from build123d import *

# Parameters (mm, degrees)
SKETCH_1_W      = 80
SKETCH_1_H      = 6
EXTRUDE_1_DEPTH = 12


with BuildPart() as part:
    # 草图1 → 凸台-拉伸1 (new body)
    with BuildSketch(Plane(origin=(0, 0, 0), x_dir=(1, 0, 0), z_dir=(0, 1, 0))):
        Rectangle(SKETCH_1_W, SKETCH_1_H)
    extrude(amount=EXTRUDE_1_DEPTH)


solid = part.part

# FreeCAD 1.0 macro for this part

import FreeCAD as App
import Part
import Sketcher

V = App.Vector
Q = App.Units.Quantity


def add_polygon(sketch, points):
    """Adds a closed chain of lines whose ends are joined by coincident constraints."""
    first, n = sketch.GeometryCount, len(points)
    for a, b in zip(points, points[1:] + points[:1]):
        sketch.addGeometry(Part.LineSegment(App.Vector(*a, 0), App.Vector(*b, 0)), False)
    for i in range(n):
        sketch.addConstraint(Sketcher.Constraint("Coincident", first + i, 2, first + (i + 1) % n, 1))

doc = App.newDocument("Part")
body = doc.addObject("PartDesign::Body", "Body")

sketch1 = body.newObject("Sketcher::SketchObject", "Sketch")
sketch1.AttachmentSupport = (doc.getObject("XZ_Plane"), [""])
sketch1.MapMode = "FlatFace"
add_polygon(sketch1, [(-40, -3), (-40, 3), (40, 3), (40, -3)])
sketch1.addConstraint([
    Sketcher.Constraint("Vertical", 0),
    Sketcher.Constraint("Horizontal", 1),
    Sketcher.Constraint("Vertical", 2),
    Sketcher.Constraint("Horizontal", 3),
    Sketcher.Constraint("Symmetric", 0, 2, 2, 2, -1, 1),
    Sketcher.Constraint("DistanceX", 1, 1, 1, 2, Q("80 mm")),
    Sketcher.Constraint("DistanceY", 0, 1, 0, 2, Q("6 mm")),
])
pad1 = body.newObject("PartDesign::Pad", "Pad")
pad1.Profile = sketch1
pad1.Length = 12
pad1.Reversed = True

doc.recompute()
